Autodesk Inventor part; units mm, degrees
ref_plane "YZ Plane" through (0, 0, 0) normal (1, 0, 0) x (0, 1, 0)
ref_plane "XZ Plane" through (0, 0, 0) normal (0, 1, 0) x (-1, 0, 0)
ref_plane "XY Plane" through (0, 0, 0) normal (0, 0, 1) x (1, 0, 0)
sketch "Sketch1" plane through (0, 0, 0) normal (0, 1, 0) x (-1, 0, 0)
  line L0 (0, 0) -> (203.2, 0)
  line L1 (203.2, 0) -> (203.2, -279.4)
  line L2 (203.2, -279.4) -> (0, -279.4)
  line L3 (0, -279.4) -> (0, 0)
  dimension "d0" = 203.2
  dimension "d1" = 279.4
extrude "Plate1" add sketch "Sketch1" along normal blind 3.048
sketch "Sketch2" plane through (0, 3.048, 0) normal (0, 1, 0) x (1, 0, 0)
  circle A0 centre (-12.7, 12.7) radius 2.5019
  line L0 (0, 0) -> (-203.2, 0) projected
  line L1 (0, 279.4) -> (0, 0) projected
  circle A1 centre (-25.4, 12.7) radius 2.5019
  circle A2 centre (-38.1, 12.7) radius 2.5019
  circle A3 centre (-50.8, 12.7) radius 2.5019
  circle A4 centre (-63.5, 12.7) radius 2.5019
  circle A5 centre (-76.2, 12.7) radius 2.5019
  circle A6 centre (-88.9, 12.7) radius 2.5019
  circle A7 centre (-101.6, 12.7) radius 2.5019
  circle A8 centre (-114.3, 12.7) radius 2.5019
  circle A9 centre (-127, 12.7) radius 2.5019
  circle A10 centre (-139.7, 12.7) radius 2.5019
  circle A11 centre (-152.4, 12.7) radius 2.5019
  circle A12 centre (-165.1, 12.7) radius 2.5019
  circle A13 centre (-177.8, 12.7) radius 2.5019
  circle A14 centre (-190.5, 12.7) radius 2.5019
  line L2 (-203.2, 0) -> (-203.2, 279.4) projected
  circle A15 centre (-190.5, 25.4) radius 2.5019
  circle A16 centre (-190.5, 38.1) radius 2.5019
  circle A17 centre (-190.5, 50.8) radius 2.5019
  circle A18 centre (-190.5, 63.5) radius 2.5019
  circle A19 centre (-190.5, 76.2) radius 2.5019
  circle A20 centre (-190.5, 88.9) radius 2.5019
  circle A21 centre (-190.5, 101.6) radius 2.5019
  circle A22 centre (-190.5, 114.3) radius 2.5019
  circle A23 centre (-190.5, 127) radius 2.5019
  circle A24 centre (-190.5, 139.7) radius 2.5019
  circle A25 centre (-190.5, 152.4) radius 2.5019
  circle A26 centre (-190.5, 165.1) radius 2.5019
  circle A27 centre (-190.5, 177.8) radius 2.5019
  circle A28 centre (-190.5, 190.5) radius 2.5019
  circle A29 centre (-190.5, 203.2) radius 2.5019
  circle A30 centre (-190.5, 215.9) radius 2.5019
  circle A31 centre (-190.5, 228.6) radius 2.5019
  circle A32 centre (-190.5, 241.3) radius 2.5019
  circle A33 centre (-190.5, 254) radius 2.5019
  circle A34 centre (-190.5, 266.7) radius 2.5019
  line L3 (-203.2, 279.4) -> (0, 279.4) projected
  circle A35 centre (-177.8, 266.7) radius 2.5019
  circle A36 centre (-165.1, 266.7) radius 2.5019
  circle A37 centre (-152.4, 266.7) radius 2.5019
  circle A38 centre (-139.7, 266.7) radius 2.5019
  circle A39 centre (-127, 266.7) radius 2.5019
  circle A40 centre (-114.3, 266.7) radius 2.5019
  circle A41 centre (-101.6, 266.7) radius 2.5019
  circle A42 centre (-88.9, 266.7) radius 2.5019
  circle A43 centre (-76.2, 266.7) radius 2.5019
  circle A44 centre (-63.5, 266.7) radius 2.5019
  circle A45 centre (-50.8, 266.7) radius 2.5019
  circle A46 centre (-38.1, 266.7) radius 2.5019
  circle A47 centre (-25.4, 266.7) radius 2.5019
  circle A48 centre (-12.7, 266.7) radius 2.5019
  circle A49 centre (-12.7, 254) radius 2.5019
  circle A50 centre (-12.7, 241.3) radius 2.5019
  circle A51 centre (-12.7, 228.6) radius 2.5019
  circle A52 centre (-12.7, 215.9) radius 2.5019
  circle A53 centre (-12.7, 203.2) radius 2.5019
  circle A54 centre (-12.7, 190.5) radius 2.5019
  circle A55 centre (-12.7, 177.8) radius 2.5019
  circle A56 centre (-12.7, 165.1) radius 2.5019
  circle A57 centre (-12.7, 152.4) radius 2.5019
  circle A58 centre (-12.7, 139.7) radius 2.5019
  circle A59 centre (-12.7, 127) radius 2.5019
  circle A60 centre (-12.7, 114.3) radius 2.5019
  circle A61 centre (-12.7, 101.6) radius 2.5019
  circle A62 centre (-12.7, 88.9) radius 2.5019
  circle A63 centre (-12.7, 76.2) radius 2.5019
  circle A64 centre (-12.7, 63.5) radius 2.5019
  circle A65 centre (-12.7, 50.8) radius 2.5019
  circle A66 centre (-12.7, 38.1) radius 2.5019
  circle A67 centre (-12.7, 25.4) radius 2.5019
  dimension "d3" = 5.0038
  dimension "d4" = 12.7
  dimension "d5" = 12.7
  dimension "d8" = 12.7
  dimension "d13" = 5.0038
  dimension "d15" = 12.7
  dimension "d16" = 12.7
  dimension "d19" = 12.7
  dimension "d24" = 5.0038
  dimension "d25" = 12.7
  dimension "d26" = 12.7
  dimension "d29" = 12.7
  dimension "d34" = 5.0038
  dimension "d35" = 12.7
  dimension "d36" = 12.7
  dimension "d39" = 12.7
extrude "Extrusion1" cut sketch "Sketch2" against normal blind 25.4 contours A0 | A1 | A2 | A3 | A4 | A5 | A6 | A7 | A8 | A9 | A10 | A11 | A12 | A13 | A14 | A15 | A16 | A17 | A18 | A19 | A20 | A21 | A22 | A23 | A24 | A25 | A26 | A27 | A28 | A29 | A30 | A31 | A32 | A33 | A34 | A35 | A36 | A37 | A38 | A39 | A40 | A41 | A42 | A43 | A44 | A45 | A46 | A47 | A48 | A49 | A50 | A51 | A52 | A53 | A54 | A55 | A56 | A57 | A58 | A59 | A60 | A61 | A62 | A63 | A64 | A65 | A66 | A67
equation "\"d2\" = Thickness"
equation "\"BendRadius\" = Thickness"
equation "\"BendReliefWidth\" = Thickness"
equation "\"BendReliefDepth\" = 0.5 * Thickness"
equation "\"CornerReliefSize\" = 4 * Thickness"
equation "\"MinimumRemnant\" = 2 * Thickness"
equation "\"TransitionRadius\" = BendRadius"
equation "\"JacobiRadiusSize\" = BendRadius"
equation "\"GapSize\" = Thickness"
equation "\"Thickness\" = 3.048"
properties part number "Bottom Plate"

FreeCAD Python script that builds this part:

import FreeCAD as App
import Part
import Sketcher

V = App.Vector
Q = App.Units.Quantity

doc = App.newDocument("Part")
body = doc.addObject("PartDesign::Body", "Body")

# Sketch on XZ plane
sketch1 = body.newObject("Sketcher::SketchObject", "Sketch")
sketch1.AttachmentSupport = (doc.getObject("XZ_Plane"), [""])
sketch1.MapMode = "FlatFace"
sketch1.addGeometry([
    Part.LineSegment(V(-203.2, 0, 0), V(0, 0, 0)),
    Part.LineSegment(V(0, 0, 0), V(0, -279.4, 0)),
    Part.LineSegment(V(0, -279.4, 0), V(-203.2, -279.4, 0)),
    Part.LineSegment(V(-203.2, -279.4, 0), V(-203.2, 0, 0)),
], False)
sketch1.addConstraint([
    Sketcher.Constraint("Coincident", 0, 2, 1, 1),
    Sketcher.Constraint("Coincident", 1, 2, 2, 1),
    Sketcher.Constraint("Coincident", 2, 2, 3, 1),
    Sketcher.Constraint("Coincident", 3, 2, 0, 1),
    Sketcher.Constraint("Horizontal", 0),
    Sketcher.Constraint("Vertical", 1),
    Sketcher.Constraint("Horizontal", 2),
    Sketcher.Constraint("Vertical", 3),
    Sketcher.Constraint("Coincident", 0, 2, -1, 1),
    Sketcher.Constraint("DistanceX", 0, 1, 0, 2, Q("8 in")),
    Sketcher.Constraint("DistanceY", 1, 2, 1, 1, Q("11 in")),
])
pad1 = body.newObject("PartDesign::Pad", "Pad")
pad1.Profile = sketch1
pad1.Length = Q("0.12 in")
pad1.Reversed = True

# Sketch on XZ plane
sketch2 = body.newObject("Sketcher::SketchObject", "Sketch001")
sketch2.AttachmentSupport = (doc.getObject("XZ_Plane"), [""])
sketch2.MapMode = "FlatFace"
sketch2.AttachmentOffset = App.Placement(V(0, 0, -0.12 * 25.4), App.Rotation())
sketch2.addGeometry([
    Part.Circle(V(-12.7, -12.7, 0), V(0, 0, 1), 2.5019),  # 0
    Part.Circle(V(-25.4, -12.7, 0), V(0, 0, 1), 2.5019),  # 1
    Part.Circle(V(-38.1, -12.7, 0), V(0, 0, 1), 2.5019),  # 2
    Part.Circle(V(-50.8, -12.7, 0), V(0, 0, 1), 2.5019),  # 3
    Part.Circle(V(-63.5, -12.7, 0), V(0, 0, 1), 2.5019),  # 4
    Part.Circle(V(-76.2, -12.7, 0), V(0, 0, 1), 2.5019),  # 5
    Part.Circle(V(-88.9, -12.7, 0), V(0, 0, 1), 2.5019),  # 6
    Part.Circle(V(-101.6, -12.7, 0), V(0, 0, 1), 2.5019),  # 7
    Part.Circle(V(-114.3, -12.7, 0), V(0, 0, 1), 2.5019),  # 8
    Part.Circle(V(-127, -12.7, 0), V(0, 0, 1), 2.5019),  # 9
    Part.Circle(V(-139.7, -12.7, 0), V(0, 0, 1), 2.5019),  # 10
    Part.Circle(V(-152.4, -12.7, 0), V(0, 0, 1), 2.5019),  # 11
    Part.Circle(V(-165.1, -12.7, 0), V(0, 0, 1), 2.5019),  # 12
    Part.Circle(V(-177.8, -12.7, 0), V(0, 0, 1), 2.5019),  # 13
    Part.Circle(V(-190.5, -12.7, 0), V(0, 0, 1), 2.5019),  # 14
    Part.Circle(V(-190.5, -25.4, 0), V(0, 0, 1), 2.5019),  # 15
    Part.Circle(V(-190.5, -38.1, 0), V(0, 0, 1), 2.5019),  # 16
    Part.Circle(V(-190.5, -50.8, 0), V(0, 0, 1), 2.5019),  # 17
    Part.Circle(V(-190.5, -63.5, 0), V(0, 0, 1), 2.5019),  # 18
    Part.Circle(V(-190.5, -76.2, 0), V(0, 0, 1), 2.5019),  # 19
    Part.Circle(V(-190.5, -88.9, 0), V(0, 0, 1), 2.5019),  # 20
    Part.Circle(V(-190.5, -101.6, 0), V(0, 0, 1), 2.5019),  # 21
    Part.Circle(V(-190.5, -114.3, 0), V(0, 0, 1), 2.5019),  # 22
    Part.Circle(V(-190.5, -127, 0), V(0, 0, 1), 2.5019),  # 23
    Part.Circle(V(-190.5, -139.7, 0), V(0, 0, 1), 2.5019),  # 24
    Part.Circle(V(-190.5, -152.4, 0), V(0, 0, 1), 2.5019),  # 25
    Part.Circle(V(-190.5, -165.1, 0), V(0, 0, 1), 2.5019),  # 26
    Part.Circle(V(-190.5, -177.8, 0), V(0, 0, 1), 2.5019),  # 27
    Part.Circle(V(-190.5, -190.5, 0), V(0, 0, 1), 2.5019),  # 28
    Part.Circle(V(-190.5, -203.2, 0), V(0, 0, 1), 2.5019),  # 29
    Part.Circle(V(-190.5, -215.9, 0), V(0, 0, 1), 2.5019),  # 30
    Part.Circle(V(-190.5, -228.6, 0), V(0, 0, 1), 2.5019),  # 31
    Part.Circle(V(-190.5, -241.3, 0), V(0, 0, 1), 2.5019),  # 32
    Part.Circle(V(-190.5, -254, 0), V(0, 0, 1), 2.5019),  # 33
    Part.Circle(V(-190.5, -266.7, 0), V(0, 0, 1), 2.5019),  # 34
    Part.Circle(V(-177.8, -266.7, 0), V(0, 0, 1), 2.5019),  # 35
    Part.Circle(V(-165.1, -266.7, 0), V(0, 0, 1), 2.5019),  # 36
    Part.Circle(V(-152.4, -266.7, 0), V(0, 0, 1), 2.5019),  # 37
    Part.Circle(V(-139.7, -266.7, 0), V(0, 0, 1), 2.5019),  # 38
    Part.Circle(V(-127, -266.7, 0), V(0, 0, 1), 2.5019),  # 39
    Part.Circle(V(-114.3, -266.7, 0), V(0, 0, 1), 2.5019),  # 40
    Part.Circle(V(-101.6, -266.7, 0), V(0, 0, 1), 2.5019),  # 41
    Part.Circle(V(-88.9, -266.7, 0), V(0, 0, 1), 2.5019),  # 42
    Part.Circle(V(-76.2, -266.7, 0), V(0, 0, 1), 2.5019),  # 43
    Part.Circle(V(-63.5, -266.7, 0), V(0, 0, 1), 2.5019),  # 44
    Part.Circle(V(-50.8, -266.7, 0), V(0, 0, 1), 2.5019),  # 45
    Part.Circle(V(-38.1, -266.7, 0), V(0, 0, 1), 2.5019),  # 46
    Part.Circle(V(-25.4, -266.7, 0), V(0, 0, 1), 2.5019),  # 47
    Part.Circle(V(-12.7, -266.7, 0), V(0, 0, 1), 2.5019),  # 48
    Part.Circle(V(-12.7, -254, 0), V(0, 0, 1), 2.5019),  # 49
    Part.Circle(V(-12.7, -241.3, 0), V(0, 0, 1), 2.5019),  # 50
    Part.Circle(V(-12.7, -228.6, 0), V(0, 0, 1), 2.5019),  # 51
    Part.Circle(V(-12.7, -215.9, 0), V(0, 0, 1), 2.5019),  # 52
    Part.Circle(V(-12.7, -203.2, 0), V(0, 0, 1), 2.5019),  # 53
    Part.Circle(V(-12.7, -190.5, 0), V(0, 0, 1), 2.5019),  # 54
    Part.Circle(V(-12.7, -177.8, 0), V(0, 0, 1), 2.5019),  # 55
    Part.Circle(V(-12.7, -165.1, 0), V(0, 0, 1), 2.5019),  # 56
    Part.Circle(V(-12.7, -152.4, 0), V(0, 0, 1), 2.5019),  # 57
    Part.Circle(V(-12.7, -139.7, 0), V(0, 0, 1), 2.5019),  # 58
    Part.Circle(V(-12.7, -127, 0), V(0, 0, 1), 2.5019),  # 59
    Part.Circle(V(-12.7, -114.3, 0), V(0, 0, 1), 2.5019),  # 60
    Part.Circle(V(-12.7, -101.6, 0), V(0, 0, 1), 2.5019),  # 61
    Part.Circle(V(-12.7, -88.9, 0), V(0, 0, 1), 2.5019),  # 62
    Part.Circle(V(-12.7, -76.2, 0), V(0, 0, 1), 2.5019),  # 63
    Part.Circle(V(-12.7, -63.5, 0), V(0, 0, 1), 2.5019),  # 64
    Part.Circle(V(-12.7, -50.8, 0), V(0, 0, 1), 2.5019),  # 65
    Part.Circle(V(-12.7, -38.1, 0), V(0, 0, 1), 2.5019),  # 66
    Part.Circle(V(-12.7, -25.4, 0), V(0, 0, 1), 2.5019),  # 67
], False)
sketch2.addConstraint([
    Sketcher.Constraint("Equal", 0, 1),
    Sketcher.Constraint("Equal", 1, 2),
    Sketcher.Constraint("Equal", 2, 3),
    Sketcher.Constraint("Equal", 3, 4),
    Sketcher.Constraint("Equal", 4, 5),
    Sketcher.Constraint("Equal", 5, 6),
    Sketcher.Constraint("Equal", 6, 7),
    Sketcher.Constraint("Equal", 7, 8),
    Sketcher.Constraint("Equal", 8, 9),
    Sketcher.Constraint("Equal", 9, 10),
    Sketcher.Constraint("Equal", 10, 11),
    Sketcher.Constraint("Equal", 11, 12),
    Sketcher.Constraint("Equal", 12, 13),
    Sketcher.Constraint("Equal", 13, 14),
    Sketcher.Constraint("Equal", 14, 15),
    Sketcher.Constraint("Equal", 15, 16),
    Sketcher.Constraint("Equal", 16, 17),
    Sketcher.Constraint("Equal", 17, 18),
    Sketcher.Constraint("Equal", 18, 19),
    Sketcher.Constraint("Equal", 19, 20),
    Sketcher.Constraint("Equal", 20, 21),
    Sketcher.Constraint("Equal", 21, 22),
    Sketcher.Constraint("Equal", 22, 23),
    Sketcher.Constraint("Equal", 23, 24),
    Sketcher.Constraint("Equal", 24, 25),
    Sketcher.Constraint("Equal", 25, 26),
    Sketcher.Constraint("Equal", 26, 27),
    Sketcher.Constraint("Equal", 27, 28),
    Sketcher.Constraint("Equal", 28, 29),
    Sketcher.Constraint("Equal", 29, 30),
    Sketcher.Constraint("Equal", 30, 31),
    Sketcher.Constraint("Equal", 31, 32),
    Sketcher.Constraint("Equal", 32, 33),
    Sketcher.Constraint("Equal", 33, 34),
    Sketcher.Constraint("Equal", 34, 35),
    Sketcher.Constraint("Equal", 35, 36),
    Sketcher.Constraint("Equal", 36, 37),
    Sketcher.Constraint("Equal", 37, 38),
    Sketcher.Constraint("Equal", 38, 39),
    Sketcher.Constraint("Equal", 39, 40),
    Sketcher.Constraint("Equal", 40, 41),
    Sketcher.Constraint("Equal", 41, 42),
    Sketcher.Constraint("Equal", 42, 43),
    Sketcher.Constraint("Equal", 43, 44),
    Sketcher.Constraint("Equal", 44, 45),
    Sketcher.Constraint("Equal", 45, 46),
    Sketcher.Constraint("Equal", 46, 47),
    Sketcher.Constraint("Equal", 47, 48),
    Sketcher.Constraint("Equal", 48, 49),
    Sketcher.Constraint("Equal", 49, 50),
    Sketcher.Constraint("Equal", 50, 51),
    Sketcher.Constraint("Equal", 51, 52),
    Sketcher.Constraint("Equal", 52, 53),
    Sketcher.Constraint("Equal", 53, 54),
    Sketcher.Constraint("Equal", 54, 55),
    Sketcher.Constraint("Equal", 55, 56),
    Sketcher.Constraint("Equal", 56, 57),
    Sketcher.Constraint("Equal", 57, 58),
    Sketcher.Constraint("Equal", 58, 59),
    Sketcher.Constraint("Equal", 59, 60),
    Sketcher.Constraint("Equal", 60, 61),
    Sketcher.Constraint("Equal", 61, 62),
    Sketcher.Constraint("Equal", 62, 63),
    Sketcher.Constraint("Equal", 63, 64),
    Sketcher.Constraint("Equal", 64, 65),
    Sketcher.Constraint("Equal", 65, 66),
    Sketcher.Constraint("Equal", 66, 67),
    Sketcher.Constraint("Horizontal", 0, 3, 1, 3),
    Sketcher.Constraint("Horizontal", 1, 3, 2, 3),
    Sketcher.Constraint("Horizontal", 2, 3, 3, 3),
    Sketcher.Constraint("Horizontal", 3, 3, 4, 3),
    Sketcher.Constraint("Horizontal", 4, 3, 5, 3),
    Sketcher.Constraint("Horizontal", 5, 3, 6, 3),
    Sketcher.Constraint("Horizontal", 6, 3, 7, 3),
    Sketcher.Constraint("Horizontal", 7, 3, 8, 3),
    Sketcher.Constraint("Horizontal", 8, 3, 9, 3),
    Sketcher.Constraint("Horizontal", 9, 3, 10, 3),
    Sketcher.Constraint("Horizontal", 10, 3, 11, 3),
    Sketcher.Constraint("Horizontal", 11, 3, 12, 3),
    Sketcher.Constraint("Horizontal", 12, 3, 13, 3),
    Sketcher.Constraint("Horizontal", 13, 3, 14, 3),
    Sketcher.Constraint("Horizontal", 34, 3, 35, 3),
    Sketcher.Constraint("Horizontal", 35, 3, 36, 3),
    Sketcher.Constraint("Horizontal", 36, 3, 37, 3),
    Sketcher.Constraint("Horizontal", 37, 3, 38, 3),
    Sketcher.Constraint("Horizontal", 38, 3, 39, 3),
    Sketcher.Constraint("Horizontal", 39, 3, 40, 3),
    Sketcher.Constraint("Horizontal", 40, 3, 41, 3),
    Sketcher.Constraint("Horizontal", 41, 3, 42, 3),
    Sketcher.Constraint("Horizontal", 42, 3, 43, 3),
    Sketcher.Constraint("Horizontal", 43, 3, 44, 3),
    Sketcher.Constraint("Horizontal", 44, 3, 45, 3),
    Sketcher.Constraint("Horizontal", 45, 3, 46, 3),
    Sketcher.Constraint("Horizontal", 46, 3, 47, 3),
    Sketcher.Constraint("Horizontal", 47, 3, 48, 3),
    Sketcher.Constraint("Horizontal", 33, 3, 49, 3),
    Sketcher.Constraint("Horizontal", 32, 3, 50, 3),
    Sketcher.Constraint("Horizontal", 31, 3, 51, 3),
    Sketcher.Constraint("Horizontal", 30, 3, 52, 3),
    Sketcher.Constraint("Horizontal", 29, 3, 53, 3),
    Sketcher.Constraint("Horizontal", 28, 3, 54, 3),
    Sketcher.Constraint("Horizontal", 27, 3, 55, 3),
    Sketcher.Constraint("Horizontal", 26, 3, 56, 3),
    Sketcher.Constraint("Horizontal", 25, 3, 57, 3),
    Sketcher.Constraint("Horizontal", 24, 3, 58, 3),
    Sketcher.Constraint("Horizontal", 23, 3, 59, 3),
    Sketcher.Constraint("Horizontal", 22, 3, 60, 3),
    Sketcher.Constraint("Horizontal", 21, 3, 61, 3),
    Sketcher.Constraint("Horizontal", 20, 3, 62, 3),
    Sketcher.Constraint("Horizontal", 19, 3, 63, 3),
    Sketcher.Constraint("Horizontal", 18, 3, 64, 3),
    Sketcher.Constraint("Horizontal", 17, 3, 65, 3),
    Sketcher.Constraint("Horizontal", 16, 3, 66, 3),
    Sketcher.Constraint("Horizontal", 15, 3, 67, 3),
    Sketcher.Constraint("Vertical", 14, 3, 15, 3),
    Sketcher.Constraint("Vertical", 15, 3, 16, 3),
    Sketcher.Constraint("Vertical", 16, 3, 17, 3),
    Sketcher.Constraint("Vertical", 17, 3, 18, 3),
    Sketcher.Constraint("Vertical", 18, 3, 19, 3),
    Sketcher.Constraint("Vertical", 19, 3, 20, 3),
    Sketcher.Constraint("Vertical", 20, 3, 21, 3),
    Sketcher.Constraint("Vertical", 21, 3, 22, 3),
    Sketcher.Constraint("Vertical", 22, 3, 23, 3),
    Sketcher.Constraint("Vertical", 23, 3, 24, 3),
    Sketcher.Constraint("Vertical", 24, 3, 25, 3),
    Sketcher.Constraint("Vertical", 25, 3, 26, 3),
    Sketcher.Constraint("Vertical", 26, 3, 27, 3),
    Sketcher.Constraint("Vertical", 27, 3, 28, 3),
    Sketcher.Constraint("Vertical", 28, 3, 29, 3),
    Sketcher.Constraint("Vertical", 29, 3, 30, 3),
    Sketcher.Constraint("Vertical", 30, 3, 31, 3),
    Sketcher.Constraint("Vertical", 31, 3, 32, 3),
    Sketcher.Constraint("Vertical", 32, 3, 33, 3),
    Sketcher.Constraint("Vertical", 33, 3, 34, 3),
    Sketcher.Constraint("Vertical", 13, 3, 35, 3),
    Sketcher.Constraint("Vertical", 12, 3, 36, 3),
    Sketcher.Constraint("Vertical", 11, 3, 37, 3),
    Sketcher.Constraint("Vertical", 10, 3, 38, 3),
    Sketcher.Constraint("Vertical", 9, 3, 39, 3),
    Sketcher.Constraint("Vertical", 8, 3, 40, 3),
    Sketcher.Constraint("Vertical", 7, 3, 41, 3),
    Sketcher.Constraint("Vertical", 6, 3, 42, 3),
    Sketcher.Constraint("Vertical", 5, 3, 43, 3),
    Sketcher.Constraint("Vertical", 4, 3, 44, 3),
    Sketcher.Constraint("Vertical", 3, 3, 45, 3),
    Sketcher.Constraint("Vertical", 2, 3, 46, 3),
    Sketcher.Constraint("Vertical", 1, 3, 47, 3),
    Sketcher.Constraint("Vertical", 0, 3, 48, 3),
    Sketcher.Constraint("Vertical", 48, 3, 49, 3),
    Sketcher.Constraint("Vertical", 49, 3, 50, 3),
    Sketcher.Constraint("Vertical", 50, 3, 51, 3),
    Sketcher.Constraint("Vertical", 51, 3, 52, 3),
    Sketcher.Constraint("Vertical", 52, 3, 53, 3),
    Sketcher.Constraint("Vertical", 53, 3, 54, 3),
    Sketcher.Constraint("Vertical", 54, 3, 55, 3),
    Sketcher.Constraint("Vertical", 55, 3, 56, 3),
    Sketcher.Constraint("Vertical", 56, 3, 57, 3),
    Sketcher.Constraint("Vertical", 57, 3, 58, 3),
    Sketcher.Constraint("Vertical", 58, 3, 59, 3),
    Sketcher.Constraint("Vertical", 59, 3, 60, 3),
    Sketcher.Constraint("Vertical", 60, 3, 61, 3),
    Sketcher.Constraint("Vertical", 61, 3, 62, 3),
    Sketcher.Constraint("Vertical", 62, 3, 63, 3),
    Sketcher.Constraint("Vertical", 63, 3, 64, 3),
    Sketcher.Constraint("Vertical", 64, 3, 65, 3),
    Sketcher.Constraint("Vertical", 65, 3, 66, 3),
    Sketcher.Constraint("Vertical", 66, 3, 67, 3),
    Sketcher.Constraint("Diameter", 0, Q("0.197 in")),
    Sketcher.Constraint("DistanceX", 1, 3, -1, 1, Q("1 in")),
    Sketcher.Constraint("DistanceY", 15, 3, -1, 1, Q("1 in")),
    Sketcher.Constraint("DistanceX", 0, 3, -1, 1, Q("0.5 in")),
    Sketcher.Constraint("DistanceY", 0, 3, -1, 1, Q("0.5 in")),
    Sketcher.Constraint("DistanceX", 3, 3, -1, 1, Q("2 in")),
    Sketcher.Constraint("DistanceX", 5, 3, -1, 1, Q("3 in")),
    Sketcher.Constraint("DistanceX", 7, 3, -1, 1, Q("4 in")),
    Sketcher.Constraint("DistanceX", 9, 3, -1, 1, Q("5 in")),
    Sketcher.Constraint("DistanceX", 11, 3, -1, 1, Q("6 in")),
    Sketcher.Constraint("DistanceX", 13, 3, -1, 1, Q("7 in")),
    Sketcher.Constraint("DistanceY", 17, 3, -1, 1, Q("2 in")),
    Sketcher.Constraint("DistanceY", 19, 3, -1, 1, Q("3 in")),
    Sketcher.Constraint("DistanceY", 21, 3, -1, 1, Q("4 in")),
    Sketcher.Constraint("DistanceY", 23, 3, -1, 1, Q("5 in")),
    Sketcher.Constraint("DistanceY", 25, 3, -1, 1, Q("6 in")),
    Sketcher.Constraint("DistanceY", 27, 3, -1, 1, Q("7 in")),
    Sketcher.Constraint("DistanceY", 29, 3, -1, 1, Q("8 in")),
    Sketcher.Constraint("DistanceY", 31, 3, -1, 1, Q("9 in")),
    Sketcher.Constraint("DistanceY", 33, 3, -1, 1, Q("10 in")),
    Sketcher.Constraint("DistanceX", 2, 3, -1, 1, Q("1.5 in")),
    Sketcher.Constraint("DistanceX", 4, 3, -1, 1, Q("2.5 in")),
    Sketcher.Constraint("DistanceX", 6, 3, -1, 1, Q("3.5 in")),
    Sketcher.Constraint("DistanceX", 8, 3, -1, 1, Q("4.5 in")),
    Sketcher.Constraint("DistanceX", 10, 3, -1, 1, Q("5.5 in")),
    Sketcher.Constraint("DistanceX", 12, 3, -1, 1, Q("6.5 in")),
    Sketcher.Constraint("DistanceX", 14, 3, -1, 1, Q("7.5 in")),
    Sketcher.Constraint("DistanceY", 16, 3, -1, 1, Q("1.5 in")),
    Sketcher.Constraint("DistanceY", 18, 3, -1, 1, Q("2.5 in")),
    Sketcher.Constraint("DistanceY", 20, 3, -1, 1, Q("3.5 in")),
    Sketcher.Constraint("DistanceY", 22, 3, -1, 1, Q("4.5 in")),
    Sketcher.Constraint("DistanceY", 24, 3, -1, 1, Q("5.5 in")),
    Sketcher.Constraint("DistanceY", 26, 3, -1, 1, Q("6.5 in")),
    Sketcher.Constraint("DistanceY", 28, 3, -1, 1, Q("7.5 in")),
    Sketcher.Constraint("DistanceY", 30, 3, -1, 1, Q("8.5 in")),
    Sketcher.Constraint("DistanceY", 32, 3, -1, 1, Q("9.5 in")),
    Sketcher.Constraint("DistanceY", 34, 3, -1, 1, Q("10.5 in")),
])
pocket1 = body.newObject("PartDesign::Pocket", "Pocket")
pocket1.Profile = sketch2
pocket1.Length = Q("1 in")
pocket1.Reversed = True

doc.recompute()
